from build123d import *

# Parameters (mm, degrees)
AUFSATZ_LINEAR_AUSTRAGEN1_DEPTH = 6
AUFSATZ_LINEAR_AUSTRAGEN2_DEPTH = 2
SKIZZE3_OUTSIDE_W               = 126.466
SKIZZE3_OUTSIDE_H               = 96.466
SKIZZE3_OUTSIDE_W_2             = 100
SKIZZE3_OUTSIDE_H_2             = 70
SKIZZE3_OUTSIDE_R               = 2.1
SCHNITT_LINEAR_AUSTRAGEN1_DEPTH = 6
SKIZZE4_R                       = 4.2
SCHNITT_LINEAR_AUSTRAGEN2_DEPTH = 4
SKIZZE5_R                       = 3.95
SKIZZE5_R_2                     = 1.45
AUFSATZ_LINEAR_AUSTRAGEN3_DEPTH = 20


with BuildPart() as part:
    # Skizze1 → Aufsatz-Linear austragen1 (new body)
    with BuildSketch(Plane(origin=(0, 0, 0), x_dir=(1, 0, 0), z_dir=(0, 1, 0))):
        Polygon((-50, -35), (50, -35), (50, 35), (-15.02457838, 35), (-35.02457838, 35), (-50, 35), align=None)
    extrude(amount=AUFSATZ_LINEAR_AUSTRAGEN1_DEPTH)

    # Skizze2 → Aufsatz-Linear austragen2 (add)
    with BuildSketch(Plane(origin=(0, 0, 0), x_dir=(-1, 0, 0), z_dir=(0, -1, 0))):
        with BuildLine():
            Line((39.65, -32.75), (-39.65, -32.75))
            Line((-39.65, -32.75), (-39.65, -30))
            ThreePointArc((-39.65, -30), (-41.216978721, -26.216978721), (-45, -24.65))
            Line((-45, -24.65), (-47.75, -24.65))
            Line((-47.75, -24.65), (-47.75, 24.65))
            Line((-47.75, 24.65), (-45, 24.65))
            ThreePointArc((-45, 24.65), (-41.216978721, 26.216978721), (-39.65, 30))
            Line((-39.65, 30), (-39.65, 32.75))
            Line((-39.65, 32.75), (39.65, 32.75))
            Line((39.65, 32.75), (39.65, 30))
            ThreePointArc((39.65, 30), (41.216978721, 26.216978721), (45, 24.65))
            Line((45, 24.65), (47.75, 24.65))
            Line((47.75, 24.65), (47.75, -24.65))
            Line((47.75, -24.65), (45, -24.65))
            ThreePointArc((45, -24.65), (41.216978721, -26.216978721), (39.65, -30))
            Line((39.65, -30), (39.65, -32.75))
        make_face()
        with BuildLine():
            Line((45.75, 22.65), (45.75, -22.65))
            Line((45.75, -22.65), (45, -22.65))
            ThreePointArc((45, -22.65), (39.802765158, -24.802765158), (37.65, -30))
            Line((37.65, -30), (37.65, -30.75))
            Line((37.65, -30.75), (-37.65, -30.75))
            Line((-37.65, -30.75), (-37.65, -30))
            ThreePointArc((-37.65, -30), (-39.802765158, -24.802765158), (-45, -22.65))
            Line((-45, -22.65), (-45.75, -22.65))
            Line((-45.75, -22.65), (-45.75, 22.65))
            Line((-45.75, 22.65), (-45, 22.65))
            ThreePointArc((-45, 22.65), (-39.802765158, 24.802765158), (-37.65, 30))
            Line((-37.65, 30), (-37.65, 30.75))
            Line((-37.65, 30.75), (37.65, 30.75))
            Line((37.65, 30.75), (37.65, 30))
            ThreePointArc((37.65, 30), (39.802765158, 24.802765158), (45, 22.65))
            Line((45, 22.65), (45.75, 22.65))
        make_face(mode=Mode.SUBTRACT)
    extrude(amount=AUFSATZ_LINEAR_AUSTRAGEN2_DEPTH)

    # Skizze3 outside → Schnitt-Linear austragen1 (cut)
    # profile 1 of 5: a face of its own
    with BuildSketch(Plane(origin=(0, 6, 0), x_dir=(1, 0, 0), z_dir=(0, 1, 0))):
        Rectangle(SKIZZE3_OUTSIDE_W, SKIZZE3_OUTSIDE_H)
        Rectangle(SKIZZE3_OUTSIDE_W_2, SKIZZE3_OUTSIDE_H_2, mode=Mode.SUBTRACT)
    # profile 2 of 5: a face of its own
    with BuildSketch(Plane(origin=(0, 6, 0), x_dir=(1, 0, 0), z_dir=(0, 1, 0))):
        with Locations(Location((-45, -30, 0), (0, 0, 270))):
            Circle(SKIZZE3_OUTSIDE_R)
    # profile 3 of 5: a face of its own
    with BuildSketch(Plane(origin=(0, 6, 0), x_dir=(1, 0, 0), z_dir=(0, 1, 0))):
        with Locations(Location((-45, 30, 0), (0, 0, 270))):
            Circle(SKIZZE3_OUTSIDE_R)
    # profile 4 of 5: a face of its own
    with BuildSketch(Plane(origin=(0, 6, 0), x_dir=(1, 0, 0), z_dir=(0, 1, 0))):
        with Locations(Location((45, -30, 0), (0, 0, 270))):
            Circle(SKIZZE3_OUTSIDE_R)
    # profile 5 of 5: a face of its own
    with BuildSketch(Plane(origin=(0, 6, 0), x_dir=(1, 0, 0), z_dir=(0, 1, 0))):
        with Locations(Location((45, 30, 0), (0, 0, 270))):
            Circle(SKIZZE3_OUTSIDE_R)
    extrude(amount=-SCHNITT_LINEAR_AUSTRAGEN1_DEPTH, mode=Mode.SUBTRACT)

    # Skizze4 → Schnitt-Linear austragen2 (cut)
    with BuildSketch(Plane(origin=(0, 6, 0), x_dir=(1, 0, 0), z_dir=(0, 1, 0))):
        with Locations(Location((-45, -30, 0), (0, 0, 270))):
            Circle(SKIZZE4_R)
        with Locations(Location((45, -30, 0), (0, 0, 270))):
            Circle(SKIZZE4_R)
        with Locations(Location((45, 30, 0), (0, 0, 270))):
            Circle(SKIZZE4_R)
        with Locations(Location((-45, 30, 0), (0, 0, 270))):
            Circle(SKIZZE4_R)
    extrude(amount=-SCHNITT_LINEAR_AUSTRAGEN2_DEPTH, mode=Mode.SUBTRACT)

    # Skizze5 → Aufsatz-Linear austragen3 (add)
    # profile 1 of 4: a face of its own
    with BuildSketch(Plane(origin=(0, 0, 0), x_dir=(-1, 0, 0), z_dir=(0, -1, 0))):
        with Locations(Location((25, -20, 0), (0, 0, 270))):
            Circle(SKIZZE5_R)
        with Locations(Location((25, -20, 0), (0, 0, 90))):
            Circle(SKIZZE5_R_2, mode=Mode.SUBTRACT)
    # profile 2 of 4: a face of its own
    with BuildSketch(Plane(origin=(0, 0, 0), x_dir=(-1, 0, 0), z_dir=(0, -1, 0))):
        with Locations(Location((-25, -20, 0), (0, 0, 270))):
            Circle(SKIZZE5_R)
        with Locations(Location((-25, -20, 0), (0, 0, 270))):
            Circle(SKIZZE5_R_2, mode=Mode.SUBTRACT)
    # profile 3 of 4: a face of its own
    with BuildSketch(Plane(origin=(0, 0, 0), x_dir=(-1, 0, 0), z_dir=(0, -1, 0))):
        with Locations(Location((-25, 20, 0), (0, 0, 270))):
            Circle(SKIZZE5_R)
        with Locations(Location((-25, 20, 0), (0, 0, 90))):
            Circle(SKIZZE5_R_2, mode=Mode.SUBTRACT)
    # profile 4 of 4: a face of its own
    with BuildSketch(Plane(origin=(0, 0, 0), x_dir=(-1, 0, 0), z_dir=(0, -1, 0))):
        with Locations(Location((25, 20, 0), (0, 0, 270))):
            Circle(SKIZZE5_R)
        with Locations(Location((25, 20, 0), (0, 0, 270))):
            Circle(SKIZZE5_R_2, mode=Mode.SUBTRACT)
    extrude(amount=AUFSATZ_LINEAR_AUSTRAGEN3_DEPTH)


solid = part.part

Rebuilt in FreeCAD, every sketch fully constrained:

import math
import FreeCAD as App
import Part
import Sketcher
from FreeCAD import Vector


def add_polygon(sketch, points):
    """Adds a closed chain of lines whose ends are joined by coincident constraints."""
    first, n = sketch.GeometryCount, len(points)
    for a, b in zip(points, points[1:] + points[:1]):
        sketch.addGeometry(Part.LineSegment(App.Vector(*a, 0), App.Vector(*b, 0)), False)
    for i in range(n):
        sketch.addConstraint(Sketcher.Constraint("Coincident", first + i, 2, first + (i + 1) % n, 1))

doc = App.newDocument("Part")
body = doc.addObject("PartDesign::Body", "Body")

sketch1 = body.newObject("Sketcher::SketchObject", "Sketch")
sketch1.AttachmentSupport = (doc.getObject("XZ_Plane"), [""])
sketch1.MapMode = "FlatFace"
add_polygon(sketch1, [(-50, 35), (50, 35), (50, -35), (-50, -35)])
sketch1.addConstraint(Sketcher.Constraint("Horizontal", 0))
sketch1.addConstraint(Sketcher.Constraint("Vertical", 1))
sketch1.addConstraint(Sketcher.Constraint("Horizontal", 2))
sketch1.addConstraint(Sketcher.Constraint("Vertical", 3))
sketch1.addConstraint(Sketcher.Constraint("Symmetric", 0, 2, 2, 2, -1, 1))
sketch1.addConstraint(Sketcher.Constraint("DistanceX", 0, 1, 0, 2, 100.0))
sketch1.addConstraint(Sketcher.Constraint("DistanceY", 1, 2, 1, 1, 70.0))
pad1 = body.newObject("PartDesign::Pad", "Pad")
pad1.Profile = sketch1
pad1.Length = 6
pad1.Reversed = True

sketch2 = body.newObject("Sketcher::SketchObject", "Sketch001")
sketch2.AttachmentSupport = (doc.getObject("XZ_Plane"), [""])
sketch2.MapMode = "FlatFace"
sketch2.addGeometry(Part.LineSegment(Vector(39.65, 32.75, 0), Vector(-39.65, 32.75, 0)), False)
sketch2.addGeometry(Part.LineSegment(Vector(-39.65, 32.75, 0), Vector(-39.65, 30, 0)), False)
sketch2.addGeometry(Part.ArcOfCircle(Part.Circle(Vector(-45, 30, 0), Vector(0, 0, 1), 5.35), math.radians(-90), math.radians(0)), False)
sketch2.addGeometry(Part.LineSegment(Vector(-45, 24.65, 0), Vector(-47.75, 24.65, 0)), False)
sketch2.addGeometry(Part.LineSegment(Vector(-47.75, 24.65, 0), Vector(-47.75, -24.65, 0)), False)
sketch2.addGeometry(Part.LineSegment(Vector(-47.75, -24.65, 0), Vector(-45, -24.65, 0)), False)
sketch2.addGeometry(Part.ArcOfCircle(Part.Circle(Vector(-45, -30, 0), Vector(0, 0, 1), 5.35), math.radians(0), math.radians(90)), False)
sketch2.addGeometry(Part.LineSegment(Vector(-39.65, -30, 0), Vector(-39.65, -32.75, 0)), False)
sketch2.addGeometry(Part.LineSegment(Vector(-39.65, -32.75, 0), Vector(39.65, -32.75, 0)), False)
sketch2.addGeometry(Part.LineSegment(Vector(39.65, -32.75, 0), Vector(39.65, -30, 0)), False)
sketch2.addGeometry(Part.ArcOfCircle(Part.Circle(Vector(45, -30, 0), Vector(0, 0, 1), 5.35), math.radians(90), math.radians(180)), False)
sketch2.addGeometry(Part.LineSegment(Vector(45, -24.65, 0), Vector(47.75, -24.65, 0)), False)
sketch2.addGeometry(Part.LineSegment(Vector(47.75, -24.65, 0), Vector(47.75, 24.65, 0)), False)
sketch2.addGeometry(Part.LineSegment(Vector(47.75, 24.65, 0), Vector(45, 24.65, 0)), False)
sketch2.addGeometry(Part.ArcOfCircle(Part.Circle(Vector(45, 30, 0), Vector(0, 0, 1), 5.35), math.radians(-180), math.radians(-90)), False)
sketch2.addGeometry(Part.LineSegment(Vector(39.65, 30, 0), Vector(39.65, 32.75, 0)), False)
sketch2.addGeometry(Part.LineSegment(Vector(-45.75, -22.65, 0), Vector(-45.75, 22.65, 0)), False)
sketch2.addGeometry(Part.LineSegment(Vector(-45.75, 22.65, 0), Vector(-45, 22.65, 0)), False)
sketch2.addGeometry(Part.ArcOfCircle(Part.Circle(Vector(-45, 30, 0), Vector(0, 0, 1), 7.35), math.radians(-90), math.radians(0)), False)
sketch2.addGeometry(Part.LineSegment(Vector(-37.65, 30, 0), Vector(-37.65, 30.75, 0)), False)
sketch2.addGeometry(Part.LineSegment(Vector(-37.65, 30.75, 0), Vector(37.65, 30.75, 0)), False)
sketch2.addGeometry(Part.LineSegment(Vector(37.65, 30.75, 0), Vector(37.65, 30, 0)), False)
sketch2.addGeometry(Part.ArcOfCircle(Part.Circle(Vector(45, 30, 0), Vector(0, 0, 1), 7.35), math.radians(180), math.radians(270)), False)
sketch2.addGeometry(Part.LineSegment(Vector(45, 22.65, 0), Vector(45.75, 22.65, 0)), False)
sketch2.addGeometry(Part.LineSegment(Vector(45.75, 22.65, 0), Vector(45.75, -22.65, 0)), False)
sketch2.addGeometry(Part.LineSegment(Vector(45.75, -22.65, 0), Vector(45, -22.65, 0)), False)
sketch2.addGeometry(Part.ArcOfCircle(Part.Circle(Vector(45, -30, 0), Vector(0, 0, 1), 7.35), math.radians(90), math.radians(180)), False)
sketch2.addGeometry(Part.LineSegment(Vector(37.65, -30, 0), Vector(37.65, -30.75, 0)), False)
sketch2.addGeometry(Part.LineSegment(Vector(37.65, -30.75, 0), Vector(-37.65, -30.75, 0)), False)
sketch2.addGeometry(Part.LineSegment(Vector(-37.65, -30.75, 0), Vector(-37.65, -30, 0)), False)
sketch2.addGeometry(Part.ArcOfCircle(Part.Circle(Vector(-45, -30, 0), Vector(0, 0, 1), 7.35), math.radians(0), math.radians(90)), False)
sketch2.addGeometry(Part.LineSegment(Vector(-45, -22.65, 0), Vector(-45.75, -22.65, 0)), False)
sketch2.addConstraint(Sketcher.Constraint("Coincident", 0, 2, 1, 1))
sketch2.addConstraint(Sketcher.Constraint("Tangent", 1, 2, 2, 2))
sketch2.addConstraint(Sketcher.Constraint("Tangent", 2, 1, 3, 1))
sketch2.addConstraint(Sketcher.Constraint("Coincident", 3, 2, 4, 1))
sketch2.addConstraint(Sketcher.Constraint("Coincident", 4, 2, 5, 1))
sketch2.addConstraint(Sketcher.Constraint("Tangent", 5, 2, 6, 2))
sketch2.addConstraint(Sketcher.Constraint("Tangent", 6, 1, 7, 1))
sketch2.addConstraint(Sketcher.Constraint("Coincident", 7, 2, 8, 1))
sketch2.addConstraint(Sketcher.Constraint("Coincident", 8, 2, 9, 1))
sketch2.addConstraint(Sketcher.Constraint("Tangent", 9, 2, 10, 2))
sketch2.addConstraint(Sketcher.Constraint("Tangent", 10, 1, 11, 1))
sketch2.addConstraint(Sketcher.Constraint("Coincident", 11, 2, 12, 1))
sketch2.addConstraint(Sketcher.Constraint("Coincident", 12, 2, 13, 1))
sketch2.addConstraint(Sketcher.Constraint("Tangent", 13, 2, 14, 2))
sketch2.addConstraint(Sketcher.Constraint("Tangent", 14, 1, 15, 1))
sketch2.addConstraint(Sketcher.Constraint("Coincident", 15, 2, 0, 1))
sketch2.addConstraint(Sketcher.Constraint("Coincident", 16, 2, 17, 1))
sketch2.addConstraint(Sketcher.Constraint("Tangent", 17, 2, 18, 1))
sketch2.addConstraint(Sketcher.Constraint("Tangent", 18, 2, 19, 1))
sketch2.addConstraint(Sketcher.Constraint("Coincident", 19, 2, 20, 1))
sketch2.addConstraint(Sketcher.Constraint("Coincident", 20, 2, 21, 1))
sketch2.addConstraint(Sketcher.Constraint("Tangent", 21, 2, 22, 1))
sketch2.addConstraint(Sketcher.Constraint("Tangent", 22, 2, 23, 1))
sketch2.addConstraint(Sketcher.Constraint("Coincident", 23, 2, 24, 1))
sketch2.addConstraint(Sketcher.Constraint("Coincident", 24, 2, 25, 1))
sketch2.addConstraint(Sketcher.Constraint("Tangent", 25, 2, 26, 1))
sketch2.addConstraint(Sketcher.Constraint("Tangent", 26, 2, 27, 1))
sketch2.addConstraint(Sketcher.Constraint("Coincident", 27, 2, 28, 1))
sketch2.addConstraint(Sketcher.Constraint("Coincident", 28, 2, 29, 1))
sketch2.addConstraint(Sketcher.Constraint("Tangent", 29, 2, 30, 1))
sketch2.addConstraint(Sketcher.Constraint("Tangent", 30, 2, 31, 1))
sketch2.addConstraint(Sketcher.Constraint("Coincident", 31, 2, 16, 1))
sketch2.addConstraint(Sketcher.Constraint("Horizontal", 0))
sketch2.addConstraint(Sketcher.Constraint("Vertical", 1))
sketch2.addConstraint(Sketcher.Constraint("Horizontal", 3))
sketch2.addConstraint(Sketcher.Constraint("Vertical", 4))
sketch2.addConstraint(Sketcher.Constraint("Horizontal", 5))
sketch2.addConstraint(Sketcher.Constraint("Vertical", 7))
sketch2.addConstraint(Sketcher.Constraint("Horizontal", 8))
sketch2.addConstraint(Sketcher.Constraint("Vertical", 9))
sketch2.addConstraint(Sketcher.Constraint("Horizontal", 11))
sketch2.addConstraint(Sketcher.Constraint("Vertical", 12))
sketch2.addConstraint(Sketcher.Constraint("Horizontal", 13))
sketch2.addConstraint(Sketcher.Constraint("Vertical", 15))
sketch2.addConstraint(Sketcher.Constraint("Vertical", 16))
sketch2.addConstraint(Sketcher.Constraint("Horizontal", 17))
sketch2.addConstraint(Sketcher.Constraint("Vertical", 19))
sketch2.addConstraint(Sketcher.Constraint("Horizontal", 20))
sketch2.addConstraint(Sketcher.Constraint("Vertical", 21))
sketch2.addConstraint(Sketcher.Constraint("Horizontal", 23))
sketch2.addConstraint(Sketcher.Constraint("Vertical", 24))
sketch2.addConstraint(Sketcher.Constraint("Horizontal", 25))
sketch2.addConstraint(Sketcher.Constraint("Vertical", 27))
sketch2.addConstraint(Sketcher.Constraint("Horizontal", 28))
sketch2.addConstraint(Sketcher.Constraint("Vertical", 29))
sketch2.addConstraint(Sketcher.Constraint("Horizontal", 31))
sketch2.addConstraint(Sketcher.Constraint("Coincident", 18, 3, 2, 3))
sketch2.addConstraint(Sketcher.Constraint("Coincident", 22, 3, 14, 3))
sketch2.addConstraint(Sketcher.Constraint("Coincident", 26, 3, 10, 3))
sketch2.addConstraint(Sketcher.Constraint("Coincident", 30, 3, 6, 3))
sketch2.addConstraint(Sketcher.Constraint("Equal", 2, 6))
sketch2.addConstraint(Sketcher.Constraint("Equal", 6, 10))
sketch2.addConstraint(Sketcher.Constraint("Equal", 10, 14))
sketch2.addConstraint(Sketcher.Constraint("Equal", 18, 22))
sketch2.addConstraint(Sketcher.Constraint("Equal", 22, 26))
sketch2.addConstraint(Sketcher.Constraint("Equal", 26, 30))
sketch2.addConstraint(Sketcher.Constraint("Symmetric", 2, 3, 10, 3, -1, 1))
sketch2.addConstraint(Sketcher.Constraint("Symmetric", 6, 3, 14, 3, -1, 1))
sketch2.addConstraint(Sketcher.Constraint("Symmetric", 6, 3, 10, 3, -2))
sketch2.addConstraint(Sketcher.Constraint("Equal", 5, 11))
sketch2.addConstraint(Sketcher.Constraint("Equal", 17, 23))
sketch2.addConstraint(Sketcher.Constraint("Equal", 13, 1))
sketch2.addConstraint(Sketcher.Constraint("Equal", 1, 7))
sketch2.addConstraint(Sketcher.Constraint("Equal", 31, 19))
sketch2.addConstraint(Sketcher.Constraint("Equal", 21, 27))
sketch2.addConstraint(Sketcher.Constraint("Radius", 2, 5.35))
sketch2.addConstraint(Sketcher.Constraint("Radius", 18, 7.35))
sketch2.addConstraint(Sketcher.Constraint("DistanceX", 0, 2, 0, 1, 79.3))
sketch2.addConstraint(Sketcher.Constraint("DistanceY", 4, 2, 4, 1, 49.3))
sketch2.addConstraint(Sketcher.Constraint("DistanceX", 3, 2, 16, 2, 2.0))
sketch2.addConstraint(Sketcher.Constraint("DistanceX", 3, 2, 3, 1, 2.75))
pad2 = body.newObject("PartDesign::Pad", "Pad001")
pad2.Profile = sketch2
pad2.Length = 2

sketch3 = body.newObject("Sketcher::SketchObject", "Sketch002")
sketch3.AttachmentSupport = (doc.getObject("XZ_Plane"), [""])
sketch3.MapMode = "FlatFace"
sketch3.AttachmentOffset = App.Placement(Vector(0, 0, -6), App.Rotation())
add_polygon(sketch3, [(-63.233, -48.233), (-63.233, 48.233), (63.233, 48.233), (63.233, -48.233)])
add_polygon(sketch3, [(50, 35), (-50, 35), (-50, -35), (50, -35)])
sketch3.addGeometry(Part.Circle(Vector(-45, 30, 0), Vector(0, 0, 1), 2.1), False)
sketch3.addGeometry(Part.Circle(Vector(-45, -30, 0), Vector(0, 0, 1), 2.1), False)
sketch3.addGeometry(Part.Circle(Vector(45, 30, 0), Vector(0, 0, 1), 2.1), False)
sketch3.addGeometry(Part.Circle(Vector(45, -30, 0), Vector(0, 0, 1), 2.1), False)
sketch3.addConstraint(Sketcher.Constraint("Vertical", 0))
sketch3.addConstraint(Sketcher.Constraint("Horizontal", 1))
sketch3.addConstraint(Sketcher.Constraint("Vertical", 2))
sketch3.addConstraint(Sketcher.Constraint("Horizontal", 3))
sketch3.addConstraint(Sketcher.Constraint("Horizontal", 4))
sketch3.addConstraint(Sketcher.Constraint("Vertical", 5))
sketch3.addConstraint(Sketcher.Constraint("Horizontal", 6))
sketch3.addConstraint(Sketcher.Constraint("Vertical", 7))
sketch3.addConstraint(Sketcher.Constraint("Equal", 8, 9))
sketch3.addConstraint(Sketcher.Constraint("Equal", 9, 10))
sketch3.addConstraint(Sketcher.Constraint("Equal", 10, 11))
sketch3.addConstraint(Sketcher.Constraint("Symmetric", 9, 3, 10, 3, -1, 1))
sketch3.addConstraint(Sketcher.Constraint("Symmetric", 8, 3, 11, 3, -1, 1))
sketch3.addConstraint(Sketcher.Constraint("Symmetric", 0, 2, 2, 2, -1, 1))
sketch3.addConstraint(Sketcher.Constraint("Symmetric", 4, 2, 6, 2, -1, 1))
sketch3.addConstraint(Sketcher.Constraint("Symmetric", 8, 3, 10, 3, -2))
sketch3.addConstraint(Sketcher.Constraint("Diameter", 8, 4.2))
sketch3.addConstraint(Sketcher.Constraint("DistanceX", 4, 2, 4, 1, 100.0))
sketch3.addConstraint(Sketcher.Constraint("DistanceY", 5, 2, 5, 1, 70.0))
sketch3.addConstraint(Sketcher.Constraint("DistanceX", 8, 3, -1, 1, 45.0))
sketch3.addConstraint(Sketcher.Constraint("DistanceY", -1, 1, 8, 3, 30.0))
sketch3.addConstraint(Sketcher.Constraint("DistanceX", 1, 1, 1, 2, 126.466))
sketch3.addConstraint(Sketcher.Constraint("DistanceY", 0, 1, 0, 2, 96.466))
pocket1 = body.newObject("PartDesign::Pocket", "Pocket")
pocket1.Profile = sketch3
pocket1.Length = 6
pocket1.Reversed = True

sketch4 = body.newObject("Sketcher::SketchObject", "Sketch003")
sketch4.AttachmentSupport = (doc.getObject("XZ_Plane"), [""])
sketch4.MapMode = "FlatFace"
sketch4.AttachmentOffset = App.Placement(Vector(0, 0, -6), App.Rotation())
sketch4.addGeometry(Part.Circle(Vector(-45, 30, 0), Vector(0, 0, 1), 4.2), False)
sketch4.addGeometry(Part.Circle(Vector(45, 30, 0), Vector(0, 0, 1), 4.2), False)
sketch4.addGeometry(Part.Circle(Vector(45, -30, 0), Vector(0, 0, 1), 4.2), False)
sketch4.addGeometry(Part.Circle(Vector(-45, -30, 0), Vector(0, 0, 1), 4.2), False)
sketch4.addConstraint(Sketcher.Constraint("Equal", 0, 1))
sketch4.addConstraint(Sketcher.Constraint("Equal", 1, 2))
sketch4.addConstraint(Sketcher.Constraint("Equal", 2, 3))
sketch4.addConstraint(Sketcher.Constraint("Symmetric", 0, 3, 2, 3, -1, 1))
sketch4.addConstraint(Sketcher.Constraint("Symmetric", 1, 3, 3, 3, -1, 1))
sketch4.addConstraint(Sketcher.Constraint("Symmetric", 0, 3, 1, 3, -2))
sketch4.addConstraint(Sketcher.Constraint("Diameter", 0, 8.4))
sketch4.addConstraint(Sketcher.Constraint("DistanceX", 0, 3, -1, 1, 45.0))
sketch4.addConstraint(Sketcher.Constraint("DistanceY", -1, 1, 0, 3, 30.0))
pocket2 = body.newObject("PartDesign::Pocket", "Pocket001")
pocket2.Profile = sketch4
pocket2.Length = 4
pocket2.Reversed = True

sketch5 = body.newObject("Sketcher::SketchObject", "Sketch004")
sketch5.AttachmentSupport = (doc.getObject("XZ_Plane"), [""])
sketch5.MapMode = "FlatFace"
sketch5.addGeometry(Part.Circle(Vector(-25, 20, 0), Vector(0, 0, 1), 3.95), False)
sketch5.addGeometry(Part.Circle(Vector(-25, 20, 0), Vector(0, 0, 1), 1.45), False)
sketch5.addGeometry(Part.Circle(Vector(25, 20, 0), Vector(0, 0, 1), 3.95), False)
sketch5.addGeometry(Part.Circle(Vector(25, 20, 0), Vector(0, 0, 1), 1.45), False)
sketch5.addGeometry(Part.Circle(Vector(25, -20, 0), Vector(0, 0, 1), 3.95), False)
sketch5.addGeometry(Part.Circle(Vector(25, -20, 0), Vector(0, 0, 1), 1.45), False)
sketch5.addGeometry(Part.Circle(Vector(-25, -20, 0), Vector(0, 0, 1), 3.95), False)
sketch5.addGeometry(Part.Circle(Vector(-25, -20, 0), Vector(0, 0, 1), 1.45), False)
sketch5.addConstraint(Sketcher.Constraint("Coincident", 1, 3, 0, 3))
sketch5.addConstraint(Sketcher.Constraint("Coincident", 3, 3, 2, 3))
sketch5.addConstraint(Sketcher.Constraint("Coincident", 5, 3, 4, 3))
sketch5.addConstraint(Sketcher.Constraint("Coincident", 7, 3, 6, 3))
sketch5.addConstraint(Sketcher.Constraint("Equal", 0, 2))
sketch5.addConstraint(Sketcher.Constraint("Equal", 1, 3))
sketch5.addConstraint(Sketcher.Constraint("Equal", 2, 4))
sketch5.addConstraint(Sketcher.Constraint("Equal", 3, 5))
sketch5.addConstraint(Sketcher.Constraint("Equal", 4, 6))
sketch5.addConstraint(Sketcher.Constraint("Equal", 5, 7))
sketch5.addConstraint(Sketcher.Constraint("Symmetric", 0, 3, 4, 3, -1, 1))
sketch5.addConstraint(Sketcher.Constraint("Symmetric", 2, 3, 6, 3, -1, 1))
sketch5.addConstraint(Sketcher.Constraint("Symmetric", 0, 3, 2, 3, -2))
sketch5.addConstraint(Sketcher.Constraint("Diameter", 0, 7.9))
sketch5.addConstraint(Sketcher.Constraint("Diameter", 1, 2.9))
sketch5.addConstraint(Sketcher.Constraint("DistanceX", 0, 3, -1, 1, 25.0))
sketch5.addConstraint(Sketcher.Constraint("DistanceY", -1, 1, 0, 3, 20.0))
pad3 = body.newObject("PartDesign::Pad", "Pad002")
pad3.Profile = sketch5
pad3.Length = 20

doc.recompute()
